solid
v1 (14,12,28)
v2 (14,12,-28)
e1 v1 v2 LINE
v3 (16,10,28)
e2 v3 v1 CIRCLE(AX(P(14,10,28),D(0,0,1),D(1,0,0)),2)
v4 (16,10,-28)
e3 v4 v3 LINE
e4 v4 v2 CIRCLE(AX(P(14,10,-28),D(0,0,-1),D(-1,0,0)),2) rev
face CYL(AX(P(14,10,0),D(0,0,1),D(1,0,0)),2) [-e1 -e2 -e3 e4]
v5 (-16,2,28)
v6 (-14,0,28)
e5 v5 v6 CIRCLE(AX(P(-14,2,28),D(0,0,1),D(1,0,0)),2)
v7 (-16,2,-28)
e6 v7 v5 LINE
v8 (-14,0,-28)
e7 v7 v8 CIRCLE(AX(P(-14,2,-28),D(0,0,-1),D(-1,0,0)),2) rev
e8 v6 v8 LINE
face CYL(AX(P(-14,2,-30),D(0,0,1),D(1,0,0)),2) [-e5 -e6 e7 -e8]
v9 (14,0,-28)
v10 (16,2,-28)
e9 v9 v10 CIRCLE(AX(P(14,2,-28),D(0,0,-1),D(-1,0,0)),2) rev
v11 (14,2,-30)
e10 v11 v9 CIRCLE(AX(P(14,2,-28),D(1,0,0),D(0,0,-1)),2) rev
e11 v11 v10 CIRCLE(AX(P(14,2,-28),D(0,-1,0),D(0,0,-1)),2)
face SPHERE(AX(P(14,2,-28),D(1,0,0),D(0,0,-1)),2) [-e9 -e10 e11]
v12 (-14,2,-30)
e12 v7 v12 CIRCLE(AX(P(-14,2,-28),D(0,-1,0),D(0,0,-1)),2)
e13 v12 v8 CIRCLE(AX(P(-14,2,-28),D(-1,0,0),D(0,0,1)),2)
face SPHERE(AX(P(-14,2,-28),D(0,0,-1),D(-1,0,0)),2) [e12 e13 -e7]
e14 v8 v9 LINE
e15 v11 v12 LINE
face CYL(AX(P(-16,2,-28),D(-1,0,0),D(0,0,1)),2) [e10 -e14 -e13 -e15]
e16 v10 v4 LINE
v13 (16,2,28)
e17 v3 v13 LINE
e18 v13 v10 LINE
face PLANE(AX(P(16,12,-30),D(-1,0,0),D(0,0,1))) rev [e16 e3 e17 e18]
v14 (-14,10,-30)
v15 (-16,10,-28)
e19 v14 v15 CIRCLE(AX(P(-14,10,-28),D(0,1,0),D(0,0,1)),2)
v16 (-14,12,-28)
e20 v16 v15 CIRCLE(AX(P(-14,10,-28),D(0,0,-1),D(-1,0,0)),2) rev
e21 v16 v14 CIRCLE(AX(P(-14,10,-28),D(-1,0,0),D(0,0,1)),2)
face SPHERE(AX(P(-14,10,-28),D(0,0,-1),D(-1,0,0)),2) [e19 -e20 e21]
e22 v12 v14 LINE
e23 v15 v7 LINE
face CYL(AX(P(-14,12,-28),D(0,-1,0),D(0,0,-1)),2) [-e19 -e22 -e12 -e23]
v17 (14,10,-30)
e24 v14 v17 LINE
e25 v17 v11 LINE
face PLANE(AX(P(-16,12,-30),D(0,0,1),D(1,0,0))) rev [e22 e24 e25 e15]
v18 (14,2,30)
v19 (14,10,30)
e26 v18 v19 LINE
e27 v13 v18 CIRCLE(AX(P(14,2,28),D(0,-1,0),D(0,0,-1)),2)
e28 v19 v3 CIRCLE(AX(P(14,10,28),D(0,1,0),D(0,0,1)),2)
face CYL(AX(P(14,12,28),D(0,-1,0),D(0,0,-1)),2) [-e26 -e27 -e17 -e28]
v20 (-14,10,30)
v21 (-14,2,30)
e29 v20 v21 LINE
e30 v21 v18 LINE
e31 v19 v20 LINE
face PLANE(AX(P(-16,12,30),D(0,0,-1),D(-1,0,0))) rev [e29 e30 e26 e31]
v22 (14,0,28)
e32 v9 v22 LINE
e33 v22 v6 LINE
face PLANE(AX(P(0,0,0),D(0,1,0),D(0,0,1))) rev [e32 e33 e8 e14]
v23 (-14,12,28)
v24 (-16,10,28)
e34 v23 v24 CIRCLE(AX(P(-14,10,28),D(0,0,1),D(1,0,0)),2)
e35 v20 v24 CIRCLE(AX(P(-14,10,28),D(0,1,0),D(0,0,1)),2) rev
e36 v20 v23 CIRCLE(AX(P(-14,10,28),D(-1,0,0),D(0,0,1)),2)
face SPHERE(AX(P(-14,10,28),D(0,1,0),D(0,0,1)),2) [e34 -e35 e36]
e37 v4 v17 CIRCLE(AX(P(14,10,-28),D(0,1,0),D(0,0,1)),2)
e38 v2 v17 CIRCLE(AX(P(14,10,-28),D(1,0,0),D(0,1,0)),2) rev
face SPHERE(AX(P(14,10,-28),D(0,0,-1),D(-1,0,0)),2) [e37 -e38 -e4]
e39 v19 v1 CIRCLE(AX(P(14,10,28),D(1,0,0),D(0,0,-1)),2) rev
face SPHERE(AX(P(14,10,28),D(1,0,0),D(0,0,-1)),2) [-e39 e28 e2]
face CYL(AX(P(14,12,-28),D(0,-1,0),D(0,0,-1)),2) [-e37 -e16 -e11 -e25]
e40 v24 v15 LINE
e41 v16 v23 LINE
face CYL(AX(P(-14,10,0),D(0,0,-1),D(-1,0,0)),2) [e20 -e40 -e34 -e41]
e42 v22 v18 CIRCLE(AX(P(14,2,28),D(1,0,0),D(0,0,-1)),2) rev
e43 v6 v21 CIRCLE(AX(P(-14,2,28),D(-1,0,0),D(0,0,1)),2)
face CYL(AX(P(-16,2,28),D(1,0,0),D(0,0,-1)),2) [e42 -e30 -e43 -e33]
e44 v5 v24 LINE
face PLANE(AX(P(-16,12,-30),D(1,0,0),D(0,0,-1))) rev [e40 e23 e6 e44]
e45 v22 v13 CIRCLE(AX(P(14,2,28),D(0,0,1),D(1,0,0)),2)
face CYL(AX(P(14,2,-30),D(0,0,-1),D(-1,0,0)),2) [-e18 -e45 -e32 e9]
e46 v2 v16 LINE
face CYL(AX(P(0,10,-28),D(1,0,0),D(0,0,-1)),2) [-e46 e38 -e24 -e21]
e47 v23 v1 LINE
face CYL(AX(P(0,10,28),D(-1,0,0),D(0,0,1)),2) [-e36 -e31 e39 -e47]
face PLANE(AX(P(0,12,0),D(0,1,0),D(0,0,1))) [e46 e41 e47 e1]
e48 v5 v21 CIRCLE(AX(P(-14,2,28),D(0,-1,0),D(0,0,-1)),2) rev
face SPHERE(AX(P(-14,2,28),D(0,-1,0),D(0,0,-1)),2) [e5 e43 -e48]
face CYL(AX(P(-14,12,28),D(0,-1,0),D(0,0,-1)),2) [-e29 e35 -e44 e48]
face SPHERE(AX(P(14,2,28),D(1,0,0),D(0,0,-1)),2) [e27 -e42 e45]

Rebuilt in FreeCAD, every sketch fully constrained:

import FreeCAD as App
import Part
import Sketcher
from FreeCAD import Vector
Q = App.Units.Quantity


def add_polygon(sketch, points):
    """Adds a closed chain of lines whose ends are joined by coincident constraints."""
    first, n = sketch.GeometryCount, len(points)
    for a, b in zip(points, points[1:] + points[:1]):
        sketch.addGeometry(Part.LineSegment(App.Vector(*a, 0), App.Vector(*b, 0)), False)
    for i in range(n):
        sketch.addConstraint(Sketcher.Constraint("Coincident", first + i, 2, first + (i + 1) % n, 1))

doc = App.newDocument("Part")
body = doc.addObject("PartDesign::Body", "Body")

# Sketch on XZ plane
sketch1 = body.newObject("Sketcher::SketchObject", "Sketch")
sketch1.AttachmentSupport = (doc.getObject("XZ_Plane"), [""])
sketch1.MapMode = "FlatFace"
add_polygon(sketch1, [(-16, -30), (-16, 30), (16, 30), (16, -30)])  # lines 0-3
sketch1.addConstraint(Sketcher.Constraint("Vertical", 0))
sketch1.addConstraint(Sketcher.Constraint("Horizontal", 1))
sketch1.addConstraint(Sketcher.Constraint("Vertical", 2))
sketch1.addConstraint(Sketcher.Constraint("Horizontal", 3))
sketch1.addConstraint(Sketcher.Constraint("Symmetric", 0, 2, 2, 2, -1, 1))
sketch1.addConstraint(Sketcher.Constraint("DistanceX", 1, 1, 1, 2, Q("32 mm")))
sketch1.addConstraint(Sketcher.Constraint("DistanceY", 0, 1, 0, 2, Q("60 mm")))
pad1 = body.newObject("PartDesign::Pad", "Pad")
pad1.Profile = sketch1
pad1.Length = 12
pad1.Reversed = True
doc.recompute()

fillet = body.newObject("PartDesign::Fillet", "Fillet")
fillet.Base = (pad1, ["Edge1"])
fillet.UseAllEdges = True
fillet.Radius = 2

doc.recompute()
